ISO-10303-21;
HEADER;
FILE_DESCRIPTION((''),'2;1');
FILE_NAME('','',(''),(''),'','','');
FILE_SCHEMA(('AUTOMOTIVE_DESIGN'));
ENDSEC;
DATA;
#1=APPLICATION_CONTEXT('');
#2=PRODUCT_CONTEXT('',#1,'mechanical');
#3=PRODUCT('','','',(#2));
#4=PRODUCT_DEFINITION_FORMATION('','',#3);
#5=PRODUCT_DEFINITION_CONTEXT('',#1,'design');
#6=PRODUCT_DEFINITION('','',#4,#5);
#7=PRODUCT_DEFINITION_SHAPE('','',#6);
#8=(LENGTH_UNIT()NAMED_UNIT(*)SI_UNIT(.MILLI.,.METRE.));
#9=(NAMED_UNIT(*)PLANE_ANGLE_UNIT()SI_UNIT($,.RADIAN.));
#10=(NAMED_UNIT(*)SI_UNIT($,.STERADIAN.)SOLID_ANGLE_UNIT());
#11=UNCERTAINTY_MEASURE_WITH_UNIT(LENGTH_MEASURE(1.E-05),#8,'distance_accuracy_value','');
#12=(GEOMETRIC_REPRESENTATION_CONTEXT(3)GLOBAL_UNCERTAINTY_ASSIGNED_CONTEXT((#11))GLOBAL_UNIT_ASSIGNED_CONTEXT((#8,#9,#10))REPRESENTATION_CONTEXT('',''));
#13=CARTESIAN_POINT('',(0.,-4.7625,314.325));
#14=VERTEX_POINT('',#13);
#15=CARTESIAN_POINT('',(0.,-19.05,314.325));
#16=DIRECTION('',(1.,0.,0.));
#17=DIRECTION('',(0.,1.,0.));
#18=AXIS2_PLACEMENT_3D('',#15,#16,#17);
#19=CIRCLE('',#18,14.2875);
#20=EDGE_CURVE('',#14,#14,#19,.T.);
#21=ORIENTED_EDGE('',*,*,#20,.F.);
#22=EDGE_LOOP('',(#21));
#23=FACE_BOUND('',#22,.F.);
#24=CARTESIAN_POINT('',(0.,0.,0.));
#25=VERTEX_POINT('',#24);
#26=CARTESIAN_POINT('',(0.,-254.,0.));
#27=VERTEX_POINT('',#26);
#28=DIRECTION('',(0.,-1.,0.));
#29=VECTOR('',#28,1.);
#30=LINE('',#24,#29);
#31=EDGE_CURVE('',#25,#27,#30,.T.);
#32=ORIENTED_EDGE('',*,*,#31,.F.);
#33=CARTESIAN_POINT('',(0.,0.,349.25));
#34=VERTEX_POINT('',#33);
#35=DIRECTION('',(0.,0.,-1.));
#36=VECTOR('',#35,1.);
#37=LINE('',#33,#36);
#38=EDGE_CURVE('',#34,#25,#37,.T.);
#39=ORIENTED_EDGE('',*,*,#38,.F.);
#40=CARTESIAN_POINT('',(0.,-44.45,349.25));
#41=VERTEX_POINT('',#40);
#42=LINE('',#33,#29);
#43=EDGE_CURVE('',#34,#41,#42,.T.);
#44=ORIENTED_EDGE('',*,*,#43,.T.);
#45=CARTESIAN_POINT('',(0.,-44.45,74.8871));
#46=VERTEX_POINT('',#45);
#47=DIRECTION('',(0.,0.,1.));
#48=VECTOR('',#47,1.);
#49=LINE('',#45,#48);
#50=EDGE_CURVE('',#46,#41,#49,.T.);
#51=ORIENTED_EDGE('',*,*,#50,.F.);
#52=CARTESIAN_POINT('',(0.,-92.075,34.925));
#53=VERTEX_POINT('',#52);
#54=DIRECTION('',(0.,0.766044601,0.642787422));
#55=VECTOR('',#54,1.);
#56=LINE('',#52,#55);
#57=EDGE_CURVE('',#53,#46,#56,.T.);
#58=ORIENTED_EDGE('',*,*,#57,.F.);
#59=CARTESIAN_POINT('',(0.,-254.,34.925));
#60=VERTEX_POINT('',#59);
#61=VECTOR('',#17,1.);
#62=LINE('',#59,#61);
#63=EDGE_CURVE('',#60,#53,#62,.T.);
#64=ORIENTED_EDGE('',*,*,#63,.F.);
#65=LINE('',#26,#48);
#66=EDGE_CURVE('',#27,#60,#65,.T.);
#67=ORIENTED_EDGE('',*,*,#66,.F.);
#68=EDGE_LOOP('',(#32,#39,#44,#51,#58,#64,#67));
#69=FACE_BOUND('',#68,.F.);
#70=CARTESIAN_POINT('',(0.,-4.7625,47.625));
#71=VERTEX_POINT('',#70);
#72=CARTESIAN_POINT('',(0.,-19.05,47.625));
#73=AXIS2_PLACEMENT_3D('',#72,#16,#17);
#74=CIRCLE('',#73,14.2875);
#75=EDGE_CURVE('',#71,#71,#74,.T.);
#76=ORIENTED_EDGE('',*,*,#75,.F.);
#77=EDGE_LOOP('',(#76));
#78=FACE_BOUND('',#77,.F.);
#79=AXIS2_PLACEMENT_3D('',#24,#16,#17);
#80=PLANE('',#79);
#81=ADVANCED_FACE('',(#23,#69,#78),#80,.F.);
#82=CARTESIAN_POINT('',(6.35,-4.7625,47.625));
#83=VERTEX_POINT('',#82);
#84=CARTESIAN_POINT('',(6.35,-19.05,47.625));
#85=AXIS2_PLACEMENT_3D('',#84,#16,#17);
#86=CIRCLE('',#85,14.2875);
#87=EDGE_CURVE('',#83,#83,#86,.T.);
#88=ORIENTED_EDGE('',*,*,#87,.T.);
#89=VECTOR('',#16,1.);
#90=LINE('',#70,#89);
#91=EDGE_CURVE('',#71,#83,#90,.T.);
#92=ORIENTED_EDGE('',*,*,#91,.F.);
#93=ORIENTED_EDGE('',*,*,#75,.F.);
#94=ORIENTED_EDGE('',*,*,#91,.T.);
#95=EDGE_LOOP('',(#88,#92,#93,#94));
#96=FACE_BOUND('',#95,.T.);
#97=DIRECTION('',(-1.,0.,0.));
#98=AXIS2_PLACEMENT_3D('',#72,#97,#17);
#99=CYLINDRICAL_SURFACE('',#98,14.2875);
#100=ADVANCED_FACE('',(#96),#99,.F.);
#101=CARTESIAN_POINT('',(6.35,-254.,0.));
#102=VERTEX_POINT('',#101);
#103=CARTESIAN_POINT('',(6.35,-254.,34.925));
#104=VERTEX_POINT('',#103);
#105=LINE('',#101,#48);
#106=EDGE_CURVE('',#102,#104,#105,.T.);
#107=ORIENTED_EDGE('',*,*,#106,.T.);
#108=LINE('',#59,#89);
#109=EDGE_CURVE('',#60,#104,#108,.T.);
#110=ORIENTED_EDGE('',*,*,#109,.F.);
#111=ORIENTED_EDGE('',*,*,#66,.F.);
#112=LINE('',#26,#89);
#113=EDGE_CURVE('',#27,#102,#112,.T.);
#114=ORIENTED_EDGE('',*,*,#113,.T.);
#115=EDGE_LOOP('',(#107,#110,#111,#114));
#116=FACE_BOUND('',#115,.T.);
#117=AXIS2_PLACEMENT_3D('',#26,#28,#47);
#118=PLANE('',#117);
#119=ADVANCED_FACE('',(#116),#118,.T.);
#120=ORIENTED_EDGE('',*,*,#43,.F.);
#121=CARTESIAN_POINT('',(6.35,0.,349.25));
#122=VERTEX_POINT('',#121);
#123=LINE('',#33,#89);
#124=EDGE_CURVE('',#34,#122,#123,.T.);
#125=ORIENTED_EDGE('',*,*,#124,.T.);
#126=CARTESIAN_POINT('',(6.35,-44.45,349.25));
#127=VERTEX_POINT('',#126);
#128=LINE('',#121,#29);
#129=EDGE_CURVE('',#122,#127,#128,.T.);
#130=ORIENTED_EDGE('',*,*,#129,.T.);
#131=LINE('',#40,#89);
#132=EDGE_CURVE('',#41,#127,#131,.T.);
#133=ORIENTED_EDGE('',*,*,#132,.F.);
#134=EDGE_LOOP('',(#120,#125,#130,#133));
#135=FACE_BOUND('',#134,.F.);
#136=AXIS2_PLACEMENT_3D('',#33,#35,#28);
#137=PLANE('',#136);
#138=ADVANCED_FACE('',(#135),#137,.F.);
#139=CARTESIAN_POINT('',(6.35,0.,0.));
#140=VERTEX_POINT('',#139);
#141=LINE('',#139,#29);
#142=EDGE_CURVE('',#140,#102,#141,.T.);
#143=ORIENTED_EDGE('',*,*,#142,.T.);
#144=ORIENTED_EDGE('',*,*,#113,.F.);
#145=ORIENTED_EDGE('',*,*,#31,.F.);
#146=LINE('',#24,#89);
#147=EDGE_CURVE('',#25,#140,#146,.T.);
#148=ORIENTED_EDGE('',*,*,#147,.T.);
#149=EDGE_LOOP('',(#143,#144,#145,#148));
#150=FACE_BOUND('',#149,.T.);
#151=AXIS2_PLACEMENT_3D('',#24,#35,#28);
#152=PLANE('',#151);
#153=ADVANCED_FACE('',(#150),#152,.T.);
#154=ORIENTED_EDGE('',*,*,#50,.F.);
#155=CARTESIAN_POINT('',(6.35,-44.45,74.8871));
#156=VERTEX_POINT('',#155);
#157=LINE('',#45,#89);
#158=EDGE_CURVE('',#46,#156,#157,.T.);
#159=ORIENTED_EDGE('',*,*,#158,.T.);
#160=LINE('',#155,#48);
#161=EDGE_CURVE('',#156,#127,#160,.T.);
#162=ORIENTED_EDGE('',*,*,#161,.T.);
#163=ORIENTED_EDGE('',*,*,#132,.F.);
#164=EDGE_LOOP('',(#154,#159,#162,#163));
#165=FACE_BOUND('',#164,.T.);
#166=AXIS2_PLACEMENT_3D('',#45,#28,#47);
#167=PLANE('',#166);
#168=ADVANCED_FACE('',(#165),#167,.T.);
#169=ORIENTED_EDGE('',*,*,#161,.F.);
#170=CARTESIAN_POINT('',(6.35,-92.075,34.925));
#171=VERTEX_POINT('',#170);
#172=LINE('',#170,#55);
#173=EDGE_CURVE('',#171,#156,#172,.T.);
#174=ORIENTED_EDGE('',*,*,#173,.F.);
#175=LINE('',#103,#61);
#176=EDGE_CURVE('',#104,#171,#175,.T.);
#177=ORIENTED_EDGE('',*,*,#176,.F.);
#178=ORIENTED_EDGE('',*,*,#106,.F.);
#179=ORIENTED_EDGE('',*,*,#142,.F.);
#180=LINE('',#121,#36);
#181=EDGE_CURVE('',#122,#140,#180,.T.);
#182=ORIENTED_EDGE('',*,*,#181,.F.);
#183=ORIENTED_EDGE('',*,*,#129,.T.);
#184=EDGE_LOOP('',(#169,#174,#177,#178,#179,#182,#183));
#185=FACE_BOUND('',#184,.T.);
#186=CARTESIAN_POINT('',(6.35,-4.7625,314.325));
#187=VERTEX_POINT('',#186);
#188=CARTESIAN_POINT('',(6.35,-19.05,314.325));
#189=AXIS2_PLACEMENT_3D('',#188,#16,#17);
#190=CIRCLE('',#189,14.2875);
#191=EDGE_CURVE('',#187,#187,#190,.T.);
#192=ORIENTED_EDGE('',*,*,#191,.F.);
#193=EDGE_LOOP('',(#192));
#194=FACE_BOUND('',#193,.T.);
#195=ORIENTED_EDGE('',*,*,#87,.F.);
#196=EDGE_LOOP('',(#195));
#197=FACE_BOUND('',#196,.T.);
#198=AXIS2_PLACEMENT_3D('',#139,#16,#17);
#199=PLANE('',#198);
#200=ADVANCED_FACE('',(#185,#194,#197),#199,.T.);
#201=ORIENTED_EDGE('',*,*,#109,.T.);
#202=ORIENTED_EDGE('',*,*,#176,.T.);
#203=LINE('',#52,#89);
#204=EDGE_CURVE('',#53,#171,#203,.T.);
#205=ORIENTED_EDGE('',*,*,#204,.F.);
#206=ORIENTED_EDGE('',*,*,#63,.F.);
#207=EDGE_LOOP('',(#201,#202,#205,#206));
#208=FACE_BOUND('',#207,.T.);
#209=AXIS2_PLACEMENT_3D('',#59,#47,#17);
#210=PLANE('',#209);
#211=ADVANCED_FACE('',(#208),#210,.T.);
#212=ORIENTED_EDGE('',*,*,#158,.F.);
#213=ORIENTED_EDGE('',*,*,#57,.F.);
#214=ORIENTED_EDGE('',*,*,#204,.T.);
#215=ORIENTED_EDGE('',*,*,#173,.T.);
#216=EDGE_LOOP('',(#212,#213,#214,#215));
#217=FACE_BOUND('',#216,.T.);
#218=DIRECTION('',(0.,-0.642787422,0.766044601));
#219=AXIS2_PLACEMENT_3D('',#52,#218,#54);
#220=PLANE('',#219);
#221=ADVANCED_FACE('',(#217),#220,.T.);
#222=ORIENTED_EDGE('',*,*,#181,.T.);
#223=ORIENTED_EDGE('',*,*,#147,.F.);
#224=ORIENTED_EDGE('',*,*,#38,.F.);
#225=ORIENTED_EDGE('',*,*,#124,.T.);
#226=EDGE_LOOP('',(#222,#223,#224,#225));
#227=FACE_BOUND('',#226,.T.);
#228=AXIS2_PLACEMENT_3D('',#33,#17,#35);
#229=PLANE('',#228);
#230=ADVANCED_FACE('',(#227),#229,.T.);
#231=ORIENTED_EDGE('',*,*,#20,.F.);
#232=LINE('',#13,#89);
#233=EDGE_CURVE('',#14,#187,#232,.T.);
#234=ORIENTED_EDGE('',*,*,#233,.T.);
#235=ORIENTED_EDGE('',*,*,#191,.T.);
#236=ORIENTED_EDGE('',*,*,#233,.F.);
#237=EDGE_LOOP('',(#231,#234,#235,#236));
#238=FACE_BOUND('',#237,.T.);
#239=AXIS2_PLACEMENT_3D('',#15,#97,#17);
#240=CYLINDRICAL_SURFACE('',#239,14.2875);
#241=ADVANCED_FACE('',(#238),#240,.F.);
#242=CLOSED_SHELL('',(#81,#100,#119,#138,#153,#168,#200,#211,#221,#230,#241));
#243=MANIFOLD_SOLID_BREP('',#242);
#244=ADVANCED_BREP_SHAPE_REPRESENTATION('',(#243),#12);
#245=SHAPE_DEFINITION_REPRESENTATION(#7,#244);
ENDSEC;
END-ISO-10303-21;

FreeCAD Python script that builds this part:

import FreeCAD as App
import Part
import Sketcher
Q = App.Units.Quantity

doc = App.newDocument("Part")
params = doc.addObject("Spreadsheet::Sheet", "Params")
for row, (alias, value) in enumerate([
    ("sketch1_width", "10 in"),
    ("sketch1_diameter", "1.125 in"),
    ("sketch1_width2", "1.75 in"),
    ("sketch1_height", "13.75 in"),
    ("sketch1_width3", "6.375 in"),
    ("pad1_length", "0.25 in"),
], start=1):
    params.set(f"A{row}", alias)
    params.set(f"B{row}", "=" + value)
    params.setAlias(f"B{row}", alias)

body = doc.addObject("PartDesign::Body", "Body")

# Sketch on YZ plane
sketch1 = body.newObject("Sketcher::SketchObject", "Sketch")
sketch1.AttachmentSupport = (doc.getObject("YZ_Plane"), [""])
sketch1.MapMode = "FlatFace"
sketch1.addGeometry([
    Part.LineSegment(App.Vector(-254, 0, 0), App.Vector(0, 0, 0)),  # 0
    Part.LineSegment(App.Vector(0, 0, 0), App.Vector(0, 349, 0)),  # 1
    Part.LineSegment(App.Vector(0, 349, 0), App.Vector(-44, 349, 0)),  # 2
    Part.LineSegment(App.Vector(-44, 349, 0), App.Vector(-44, 75, 0)),  # 3
    Part.LineSegment(App.Vector(-44, 75, 0), App.Vector(-92, 35, 0)),  # 4
    Part.LineSegment(App.Vector(-92, 35, 0), App.Vector(-254, 35, 0)),  # 5
    Part.LineSegment(App.Vector(-254, 35, 0), App.Vector(-254, 0, 0)),  # 6
    Part.Circle(App.Vector(-19, 48, 0), App.Vector(0, 0, 1), 14),  # 7
    Part.Circle(App.Vector(-19, 314, 0), App.Vector(0, 0, 1), 14),  # 8
], False)
sketch1.addConstraint([
    Sketcher.Constraint("Coincident", 0, 2, 1, 1),
    Sketcher.Constraint("Coincident", 1, 2, 2, 1),
    Sketcher.Constraint("Coincident", 2, 2, 3, 1),
    Sketcher.Constraint("Coincident", 3, 2, 4, 1),
    Sketcher.Constraint("Coincident", 4, 2, 5, 1),
    Sketcher.Constraint("Coincident", 5, 2, 6, 1),
    Sketcher.Constraint("Coincident", 6, 2, 0, 1),
    Sketcher.Constraint("Horizontal", 0),
    Sketcher.Constraint("Vertical", 1),
    Sketcher.Constraint("Horizontal", 2),
    Sketcher.Constraint("Vertical", 3),
    Sketcher.Constraint("Horizontal", 5),
    Sketcher.Constraint("Vertical", 6),
    Sketcher.Constraint("Coincident", 0, 2, -1, 1),
    Sketcher.Constraint("Equal", 7, 8),
    Sketcher.Constraint("Vertical", 7, 3, 8, 3),
    Sketcher.Constraint("DistanceX", 0, 1, 0, 2, Q("10 in")),
    Sketcher.Constraint("Diameter", 7, Q("1.125 in")),
    Sketcher.Constraint("DistanceX", 2, 2, 2, 1, Q("1.75 in")),
    Sketcher.Constraint("DistanceY", 1, 1, 1, 2, Q("13.75 in")),
    Sketcher.Constraint("DistanceY", 7, 3, 8, 3, Q("10.5 in")),
    Sketcher.Constraint("DistanceX", 5, 2, 5, 1, Q("6.375 in")),
    Sketcher.Constraint("DistanceY", 6, 2, 6, 1, Q("1.375 in")),
    Sketcher.Constraint("DistanceX", 7, 3, -1, 1, Q("0.75 in")),
    Sketcher.Constraint("DistanceY", -1, 1, 7, 3, Q("1.875 in")),
    Sketcher.Constraint("Angle", 4, Q("-140 deg")),
])
sketch1.setExpression("Constraints[16]", "Params.sketch1_width")
sketch1.setExpression("Constraints[17]", "Params.sketch1_diameter")
sketch1.setExpression("Constraints[18]", "Params.sketch1_width2")
sketch1.setExpression("Constraints[19]", "Params.sketch1_height")
sketch1.setExpression("Constraints[21]", "Params.sketch1_width3")
pad1 = body.newObject("PartDesign::Pad", "Pad")
pad1.Profile = sketch1
pad1.setExpression("Length", "Params.pad1_length")

doc.recompute()
